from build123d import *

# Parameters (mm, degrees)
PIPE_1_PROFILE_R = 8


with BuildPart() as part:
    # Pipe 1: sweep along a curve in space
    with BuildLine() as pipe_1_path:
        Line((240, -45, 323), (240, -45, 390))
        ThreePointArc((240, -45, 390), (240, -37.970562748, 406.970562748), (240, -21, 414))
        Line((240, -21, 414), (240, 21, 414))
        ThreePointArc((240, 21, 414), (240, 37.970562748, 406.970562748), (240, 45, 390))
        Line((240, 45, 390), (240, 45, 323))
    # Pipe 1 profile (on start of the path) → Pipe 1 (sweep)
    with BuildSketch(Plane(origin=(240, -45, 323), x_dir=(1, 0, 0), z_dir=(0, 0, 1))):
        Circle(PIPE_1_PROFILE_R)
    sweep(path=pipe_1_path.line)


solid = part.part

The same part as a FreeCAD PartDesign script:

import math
import FreeCAD as App
import Part
import Sketcher
Q = App.Units.Quantity

doc = App.newDocument("Part")
params = doc.addObject("Spreadsheet::Sheet", "Params")
for row, (alias, value) in enumerate([
    ("sketch1_diameter", "16 mm"),
    ("sketch2_radius", "24 mm"),
    ("sketch2_width", "42 mm"),
    ("sketch2_height", "67 mm"),
], start=1):
    params.set(f"A{row}", alias)
    params.set(f"B{row}", "=" + value)
    params.setAlias(f"B{row}", alias)

body = doc.addObject("PartDesign::Body", "Body")

# Sketch on XY plane
sketch1 = body.newObject("Sketcher::SketchObject", "Sketch")
sketch1.AttachmentSupport = (doc.getObject("XY_Plane"), [""])
sketch1.MapMode = "FlatFace"
sketch1.AttachmentOffset = App.Placement(App.Vector(0, 0, 323), App.Rotation())
sketch1.addGeometry(Part.Circle(App.Vector(240, -45, 0), App.Vector(0, 0, 1), 8), False)
sketch1.addConstraint(Sketcher.Constraint("Diameter", 0, Q("16 mm")))
sketch1.addConstraint(Sketcher.Constraint("DistanceX", -1, 1, 0, 3, Q("240 mm")))
sketch1.addConstraint(Sketcher.Constraint("DistanceY", 0, 3, -1, 1, Q("45 mm")))
sketch1.setExpression("Constraints[0]", "Params.sketch1_diameter")

# Sketch on YZ plane
sketch2 = body.newObject("Sketcher::SketchObject", "Sketch001")
sketch2.AttachmentSupport = (doc.getObject("YZ_Plane"), [""])
sketch2.MapMode = "FlatFace"
sketch2.AttachmentOffset = App.Placement(App.Vector(0, 0, 240), App.Rotation())
sketch2.addGeometry(Part.LineSegment(App.Vector(-45, 323, 0), App.Vector(-45, 390, 0)), False)
sketch2.addGeometry(Part.ArcOfCircle(Part.Circle(App.Vector(-21, 390, 0), App.Vector(0, 0, 1), 24), math.radians(90), math.radians(180)), False)
sketch2.addGeometry(Part.LineSegment(App.Vector(-21, 414, 0), App.Vector(21, 414, 0)), False)
sketch2.addGeometry(Part.ArcOfCircle(Part.Circle(App.Vector(21, 390, 0), App.Vector(0, 0, 1), 24), math.radians(0), math.radians(90)), False)
sketch2.addGeometry(Part.LineSegment(App.Vector(45, 390, 0), App.Vector(45, 323, 0)), False)
sketch2.addConstraint(Sketcher.Constraint("Tangent", 0, 2, 1, 2))
sketch2.addConstraint(Sketcher.Constraint("Tangent", 1, 1, 2, 1))
sketch2.addConstraint(Sketcher.Constraint("Tangent", 2, 2, 3, 2))
sketch2.addConstraint(Sketcher.Constraint("Tangent", 3, 1, 4, 1))
sketch2.addConstraint(Sketcher.Constraint("Vertical", 0))
sketch2.addConstraint(Sketcher.Constraint("Horizontal", 2))
sketch2.addConstraint(Sketcher.Constraint("Vertical", 4))
sketch2.addConstraint(Sketcher.Constraint("Equal", 1, 3))
sketch2.addConstraint(Sketcher.Constraint("Symmetric", 0, 1, 4, 2, -2))
sketch2.addConstraint(Sketcher.Constraint("Radius", 1, Q("24 mm")))
sketch2.addConstraint(Sketcher.Constraint("DistanceX", 2, 1, 2, 2, Q("42 mm")))
sketch2.addConstraint(Sketcher.Constraint("DistanceY", 0, 1, 0, 2, Q("67 mm")))
sketch2.addConstraint(Sketcher.Constraint("DistanceY", -1, 1, 1, 3, Q("390 mm")))
sketch2.setExpression("Constraints[9]", "Params.sketch2_radius")
sketch2.setExpression("Constraints[10]", "Params.sketch2_width")
sketch2.setExpression("Constraints[11]", "Params.sketch2_height")
doc.recompute()

additivepipe = body.newObject("PartDesign::AdditivePipe", "AdditivePipe")
additivepipe.Profile = sketch1
additivepipe.Spine = (sketch2, ["Edge1", "Edge2", "Edge3", "Edge4", "Edge5"])

doc.recompute()
